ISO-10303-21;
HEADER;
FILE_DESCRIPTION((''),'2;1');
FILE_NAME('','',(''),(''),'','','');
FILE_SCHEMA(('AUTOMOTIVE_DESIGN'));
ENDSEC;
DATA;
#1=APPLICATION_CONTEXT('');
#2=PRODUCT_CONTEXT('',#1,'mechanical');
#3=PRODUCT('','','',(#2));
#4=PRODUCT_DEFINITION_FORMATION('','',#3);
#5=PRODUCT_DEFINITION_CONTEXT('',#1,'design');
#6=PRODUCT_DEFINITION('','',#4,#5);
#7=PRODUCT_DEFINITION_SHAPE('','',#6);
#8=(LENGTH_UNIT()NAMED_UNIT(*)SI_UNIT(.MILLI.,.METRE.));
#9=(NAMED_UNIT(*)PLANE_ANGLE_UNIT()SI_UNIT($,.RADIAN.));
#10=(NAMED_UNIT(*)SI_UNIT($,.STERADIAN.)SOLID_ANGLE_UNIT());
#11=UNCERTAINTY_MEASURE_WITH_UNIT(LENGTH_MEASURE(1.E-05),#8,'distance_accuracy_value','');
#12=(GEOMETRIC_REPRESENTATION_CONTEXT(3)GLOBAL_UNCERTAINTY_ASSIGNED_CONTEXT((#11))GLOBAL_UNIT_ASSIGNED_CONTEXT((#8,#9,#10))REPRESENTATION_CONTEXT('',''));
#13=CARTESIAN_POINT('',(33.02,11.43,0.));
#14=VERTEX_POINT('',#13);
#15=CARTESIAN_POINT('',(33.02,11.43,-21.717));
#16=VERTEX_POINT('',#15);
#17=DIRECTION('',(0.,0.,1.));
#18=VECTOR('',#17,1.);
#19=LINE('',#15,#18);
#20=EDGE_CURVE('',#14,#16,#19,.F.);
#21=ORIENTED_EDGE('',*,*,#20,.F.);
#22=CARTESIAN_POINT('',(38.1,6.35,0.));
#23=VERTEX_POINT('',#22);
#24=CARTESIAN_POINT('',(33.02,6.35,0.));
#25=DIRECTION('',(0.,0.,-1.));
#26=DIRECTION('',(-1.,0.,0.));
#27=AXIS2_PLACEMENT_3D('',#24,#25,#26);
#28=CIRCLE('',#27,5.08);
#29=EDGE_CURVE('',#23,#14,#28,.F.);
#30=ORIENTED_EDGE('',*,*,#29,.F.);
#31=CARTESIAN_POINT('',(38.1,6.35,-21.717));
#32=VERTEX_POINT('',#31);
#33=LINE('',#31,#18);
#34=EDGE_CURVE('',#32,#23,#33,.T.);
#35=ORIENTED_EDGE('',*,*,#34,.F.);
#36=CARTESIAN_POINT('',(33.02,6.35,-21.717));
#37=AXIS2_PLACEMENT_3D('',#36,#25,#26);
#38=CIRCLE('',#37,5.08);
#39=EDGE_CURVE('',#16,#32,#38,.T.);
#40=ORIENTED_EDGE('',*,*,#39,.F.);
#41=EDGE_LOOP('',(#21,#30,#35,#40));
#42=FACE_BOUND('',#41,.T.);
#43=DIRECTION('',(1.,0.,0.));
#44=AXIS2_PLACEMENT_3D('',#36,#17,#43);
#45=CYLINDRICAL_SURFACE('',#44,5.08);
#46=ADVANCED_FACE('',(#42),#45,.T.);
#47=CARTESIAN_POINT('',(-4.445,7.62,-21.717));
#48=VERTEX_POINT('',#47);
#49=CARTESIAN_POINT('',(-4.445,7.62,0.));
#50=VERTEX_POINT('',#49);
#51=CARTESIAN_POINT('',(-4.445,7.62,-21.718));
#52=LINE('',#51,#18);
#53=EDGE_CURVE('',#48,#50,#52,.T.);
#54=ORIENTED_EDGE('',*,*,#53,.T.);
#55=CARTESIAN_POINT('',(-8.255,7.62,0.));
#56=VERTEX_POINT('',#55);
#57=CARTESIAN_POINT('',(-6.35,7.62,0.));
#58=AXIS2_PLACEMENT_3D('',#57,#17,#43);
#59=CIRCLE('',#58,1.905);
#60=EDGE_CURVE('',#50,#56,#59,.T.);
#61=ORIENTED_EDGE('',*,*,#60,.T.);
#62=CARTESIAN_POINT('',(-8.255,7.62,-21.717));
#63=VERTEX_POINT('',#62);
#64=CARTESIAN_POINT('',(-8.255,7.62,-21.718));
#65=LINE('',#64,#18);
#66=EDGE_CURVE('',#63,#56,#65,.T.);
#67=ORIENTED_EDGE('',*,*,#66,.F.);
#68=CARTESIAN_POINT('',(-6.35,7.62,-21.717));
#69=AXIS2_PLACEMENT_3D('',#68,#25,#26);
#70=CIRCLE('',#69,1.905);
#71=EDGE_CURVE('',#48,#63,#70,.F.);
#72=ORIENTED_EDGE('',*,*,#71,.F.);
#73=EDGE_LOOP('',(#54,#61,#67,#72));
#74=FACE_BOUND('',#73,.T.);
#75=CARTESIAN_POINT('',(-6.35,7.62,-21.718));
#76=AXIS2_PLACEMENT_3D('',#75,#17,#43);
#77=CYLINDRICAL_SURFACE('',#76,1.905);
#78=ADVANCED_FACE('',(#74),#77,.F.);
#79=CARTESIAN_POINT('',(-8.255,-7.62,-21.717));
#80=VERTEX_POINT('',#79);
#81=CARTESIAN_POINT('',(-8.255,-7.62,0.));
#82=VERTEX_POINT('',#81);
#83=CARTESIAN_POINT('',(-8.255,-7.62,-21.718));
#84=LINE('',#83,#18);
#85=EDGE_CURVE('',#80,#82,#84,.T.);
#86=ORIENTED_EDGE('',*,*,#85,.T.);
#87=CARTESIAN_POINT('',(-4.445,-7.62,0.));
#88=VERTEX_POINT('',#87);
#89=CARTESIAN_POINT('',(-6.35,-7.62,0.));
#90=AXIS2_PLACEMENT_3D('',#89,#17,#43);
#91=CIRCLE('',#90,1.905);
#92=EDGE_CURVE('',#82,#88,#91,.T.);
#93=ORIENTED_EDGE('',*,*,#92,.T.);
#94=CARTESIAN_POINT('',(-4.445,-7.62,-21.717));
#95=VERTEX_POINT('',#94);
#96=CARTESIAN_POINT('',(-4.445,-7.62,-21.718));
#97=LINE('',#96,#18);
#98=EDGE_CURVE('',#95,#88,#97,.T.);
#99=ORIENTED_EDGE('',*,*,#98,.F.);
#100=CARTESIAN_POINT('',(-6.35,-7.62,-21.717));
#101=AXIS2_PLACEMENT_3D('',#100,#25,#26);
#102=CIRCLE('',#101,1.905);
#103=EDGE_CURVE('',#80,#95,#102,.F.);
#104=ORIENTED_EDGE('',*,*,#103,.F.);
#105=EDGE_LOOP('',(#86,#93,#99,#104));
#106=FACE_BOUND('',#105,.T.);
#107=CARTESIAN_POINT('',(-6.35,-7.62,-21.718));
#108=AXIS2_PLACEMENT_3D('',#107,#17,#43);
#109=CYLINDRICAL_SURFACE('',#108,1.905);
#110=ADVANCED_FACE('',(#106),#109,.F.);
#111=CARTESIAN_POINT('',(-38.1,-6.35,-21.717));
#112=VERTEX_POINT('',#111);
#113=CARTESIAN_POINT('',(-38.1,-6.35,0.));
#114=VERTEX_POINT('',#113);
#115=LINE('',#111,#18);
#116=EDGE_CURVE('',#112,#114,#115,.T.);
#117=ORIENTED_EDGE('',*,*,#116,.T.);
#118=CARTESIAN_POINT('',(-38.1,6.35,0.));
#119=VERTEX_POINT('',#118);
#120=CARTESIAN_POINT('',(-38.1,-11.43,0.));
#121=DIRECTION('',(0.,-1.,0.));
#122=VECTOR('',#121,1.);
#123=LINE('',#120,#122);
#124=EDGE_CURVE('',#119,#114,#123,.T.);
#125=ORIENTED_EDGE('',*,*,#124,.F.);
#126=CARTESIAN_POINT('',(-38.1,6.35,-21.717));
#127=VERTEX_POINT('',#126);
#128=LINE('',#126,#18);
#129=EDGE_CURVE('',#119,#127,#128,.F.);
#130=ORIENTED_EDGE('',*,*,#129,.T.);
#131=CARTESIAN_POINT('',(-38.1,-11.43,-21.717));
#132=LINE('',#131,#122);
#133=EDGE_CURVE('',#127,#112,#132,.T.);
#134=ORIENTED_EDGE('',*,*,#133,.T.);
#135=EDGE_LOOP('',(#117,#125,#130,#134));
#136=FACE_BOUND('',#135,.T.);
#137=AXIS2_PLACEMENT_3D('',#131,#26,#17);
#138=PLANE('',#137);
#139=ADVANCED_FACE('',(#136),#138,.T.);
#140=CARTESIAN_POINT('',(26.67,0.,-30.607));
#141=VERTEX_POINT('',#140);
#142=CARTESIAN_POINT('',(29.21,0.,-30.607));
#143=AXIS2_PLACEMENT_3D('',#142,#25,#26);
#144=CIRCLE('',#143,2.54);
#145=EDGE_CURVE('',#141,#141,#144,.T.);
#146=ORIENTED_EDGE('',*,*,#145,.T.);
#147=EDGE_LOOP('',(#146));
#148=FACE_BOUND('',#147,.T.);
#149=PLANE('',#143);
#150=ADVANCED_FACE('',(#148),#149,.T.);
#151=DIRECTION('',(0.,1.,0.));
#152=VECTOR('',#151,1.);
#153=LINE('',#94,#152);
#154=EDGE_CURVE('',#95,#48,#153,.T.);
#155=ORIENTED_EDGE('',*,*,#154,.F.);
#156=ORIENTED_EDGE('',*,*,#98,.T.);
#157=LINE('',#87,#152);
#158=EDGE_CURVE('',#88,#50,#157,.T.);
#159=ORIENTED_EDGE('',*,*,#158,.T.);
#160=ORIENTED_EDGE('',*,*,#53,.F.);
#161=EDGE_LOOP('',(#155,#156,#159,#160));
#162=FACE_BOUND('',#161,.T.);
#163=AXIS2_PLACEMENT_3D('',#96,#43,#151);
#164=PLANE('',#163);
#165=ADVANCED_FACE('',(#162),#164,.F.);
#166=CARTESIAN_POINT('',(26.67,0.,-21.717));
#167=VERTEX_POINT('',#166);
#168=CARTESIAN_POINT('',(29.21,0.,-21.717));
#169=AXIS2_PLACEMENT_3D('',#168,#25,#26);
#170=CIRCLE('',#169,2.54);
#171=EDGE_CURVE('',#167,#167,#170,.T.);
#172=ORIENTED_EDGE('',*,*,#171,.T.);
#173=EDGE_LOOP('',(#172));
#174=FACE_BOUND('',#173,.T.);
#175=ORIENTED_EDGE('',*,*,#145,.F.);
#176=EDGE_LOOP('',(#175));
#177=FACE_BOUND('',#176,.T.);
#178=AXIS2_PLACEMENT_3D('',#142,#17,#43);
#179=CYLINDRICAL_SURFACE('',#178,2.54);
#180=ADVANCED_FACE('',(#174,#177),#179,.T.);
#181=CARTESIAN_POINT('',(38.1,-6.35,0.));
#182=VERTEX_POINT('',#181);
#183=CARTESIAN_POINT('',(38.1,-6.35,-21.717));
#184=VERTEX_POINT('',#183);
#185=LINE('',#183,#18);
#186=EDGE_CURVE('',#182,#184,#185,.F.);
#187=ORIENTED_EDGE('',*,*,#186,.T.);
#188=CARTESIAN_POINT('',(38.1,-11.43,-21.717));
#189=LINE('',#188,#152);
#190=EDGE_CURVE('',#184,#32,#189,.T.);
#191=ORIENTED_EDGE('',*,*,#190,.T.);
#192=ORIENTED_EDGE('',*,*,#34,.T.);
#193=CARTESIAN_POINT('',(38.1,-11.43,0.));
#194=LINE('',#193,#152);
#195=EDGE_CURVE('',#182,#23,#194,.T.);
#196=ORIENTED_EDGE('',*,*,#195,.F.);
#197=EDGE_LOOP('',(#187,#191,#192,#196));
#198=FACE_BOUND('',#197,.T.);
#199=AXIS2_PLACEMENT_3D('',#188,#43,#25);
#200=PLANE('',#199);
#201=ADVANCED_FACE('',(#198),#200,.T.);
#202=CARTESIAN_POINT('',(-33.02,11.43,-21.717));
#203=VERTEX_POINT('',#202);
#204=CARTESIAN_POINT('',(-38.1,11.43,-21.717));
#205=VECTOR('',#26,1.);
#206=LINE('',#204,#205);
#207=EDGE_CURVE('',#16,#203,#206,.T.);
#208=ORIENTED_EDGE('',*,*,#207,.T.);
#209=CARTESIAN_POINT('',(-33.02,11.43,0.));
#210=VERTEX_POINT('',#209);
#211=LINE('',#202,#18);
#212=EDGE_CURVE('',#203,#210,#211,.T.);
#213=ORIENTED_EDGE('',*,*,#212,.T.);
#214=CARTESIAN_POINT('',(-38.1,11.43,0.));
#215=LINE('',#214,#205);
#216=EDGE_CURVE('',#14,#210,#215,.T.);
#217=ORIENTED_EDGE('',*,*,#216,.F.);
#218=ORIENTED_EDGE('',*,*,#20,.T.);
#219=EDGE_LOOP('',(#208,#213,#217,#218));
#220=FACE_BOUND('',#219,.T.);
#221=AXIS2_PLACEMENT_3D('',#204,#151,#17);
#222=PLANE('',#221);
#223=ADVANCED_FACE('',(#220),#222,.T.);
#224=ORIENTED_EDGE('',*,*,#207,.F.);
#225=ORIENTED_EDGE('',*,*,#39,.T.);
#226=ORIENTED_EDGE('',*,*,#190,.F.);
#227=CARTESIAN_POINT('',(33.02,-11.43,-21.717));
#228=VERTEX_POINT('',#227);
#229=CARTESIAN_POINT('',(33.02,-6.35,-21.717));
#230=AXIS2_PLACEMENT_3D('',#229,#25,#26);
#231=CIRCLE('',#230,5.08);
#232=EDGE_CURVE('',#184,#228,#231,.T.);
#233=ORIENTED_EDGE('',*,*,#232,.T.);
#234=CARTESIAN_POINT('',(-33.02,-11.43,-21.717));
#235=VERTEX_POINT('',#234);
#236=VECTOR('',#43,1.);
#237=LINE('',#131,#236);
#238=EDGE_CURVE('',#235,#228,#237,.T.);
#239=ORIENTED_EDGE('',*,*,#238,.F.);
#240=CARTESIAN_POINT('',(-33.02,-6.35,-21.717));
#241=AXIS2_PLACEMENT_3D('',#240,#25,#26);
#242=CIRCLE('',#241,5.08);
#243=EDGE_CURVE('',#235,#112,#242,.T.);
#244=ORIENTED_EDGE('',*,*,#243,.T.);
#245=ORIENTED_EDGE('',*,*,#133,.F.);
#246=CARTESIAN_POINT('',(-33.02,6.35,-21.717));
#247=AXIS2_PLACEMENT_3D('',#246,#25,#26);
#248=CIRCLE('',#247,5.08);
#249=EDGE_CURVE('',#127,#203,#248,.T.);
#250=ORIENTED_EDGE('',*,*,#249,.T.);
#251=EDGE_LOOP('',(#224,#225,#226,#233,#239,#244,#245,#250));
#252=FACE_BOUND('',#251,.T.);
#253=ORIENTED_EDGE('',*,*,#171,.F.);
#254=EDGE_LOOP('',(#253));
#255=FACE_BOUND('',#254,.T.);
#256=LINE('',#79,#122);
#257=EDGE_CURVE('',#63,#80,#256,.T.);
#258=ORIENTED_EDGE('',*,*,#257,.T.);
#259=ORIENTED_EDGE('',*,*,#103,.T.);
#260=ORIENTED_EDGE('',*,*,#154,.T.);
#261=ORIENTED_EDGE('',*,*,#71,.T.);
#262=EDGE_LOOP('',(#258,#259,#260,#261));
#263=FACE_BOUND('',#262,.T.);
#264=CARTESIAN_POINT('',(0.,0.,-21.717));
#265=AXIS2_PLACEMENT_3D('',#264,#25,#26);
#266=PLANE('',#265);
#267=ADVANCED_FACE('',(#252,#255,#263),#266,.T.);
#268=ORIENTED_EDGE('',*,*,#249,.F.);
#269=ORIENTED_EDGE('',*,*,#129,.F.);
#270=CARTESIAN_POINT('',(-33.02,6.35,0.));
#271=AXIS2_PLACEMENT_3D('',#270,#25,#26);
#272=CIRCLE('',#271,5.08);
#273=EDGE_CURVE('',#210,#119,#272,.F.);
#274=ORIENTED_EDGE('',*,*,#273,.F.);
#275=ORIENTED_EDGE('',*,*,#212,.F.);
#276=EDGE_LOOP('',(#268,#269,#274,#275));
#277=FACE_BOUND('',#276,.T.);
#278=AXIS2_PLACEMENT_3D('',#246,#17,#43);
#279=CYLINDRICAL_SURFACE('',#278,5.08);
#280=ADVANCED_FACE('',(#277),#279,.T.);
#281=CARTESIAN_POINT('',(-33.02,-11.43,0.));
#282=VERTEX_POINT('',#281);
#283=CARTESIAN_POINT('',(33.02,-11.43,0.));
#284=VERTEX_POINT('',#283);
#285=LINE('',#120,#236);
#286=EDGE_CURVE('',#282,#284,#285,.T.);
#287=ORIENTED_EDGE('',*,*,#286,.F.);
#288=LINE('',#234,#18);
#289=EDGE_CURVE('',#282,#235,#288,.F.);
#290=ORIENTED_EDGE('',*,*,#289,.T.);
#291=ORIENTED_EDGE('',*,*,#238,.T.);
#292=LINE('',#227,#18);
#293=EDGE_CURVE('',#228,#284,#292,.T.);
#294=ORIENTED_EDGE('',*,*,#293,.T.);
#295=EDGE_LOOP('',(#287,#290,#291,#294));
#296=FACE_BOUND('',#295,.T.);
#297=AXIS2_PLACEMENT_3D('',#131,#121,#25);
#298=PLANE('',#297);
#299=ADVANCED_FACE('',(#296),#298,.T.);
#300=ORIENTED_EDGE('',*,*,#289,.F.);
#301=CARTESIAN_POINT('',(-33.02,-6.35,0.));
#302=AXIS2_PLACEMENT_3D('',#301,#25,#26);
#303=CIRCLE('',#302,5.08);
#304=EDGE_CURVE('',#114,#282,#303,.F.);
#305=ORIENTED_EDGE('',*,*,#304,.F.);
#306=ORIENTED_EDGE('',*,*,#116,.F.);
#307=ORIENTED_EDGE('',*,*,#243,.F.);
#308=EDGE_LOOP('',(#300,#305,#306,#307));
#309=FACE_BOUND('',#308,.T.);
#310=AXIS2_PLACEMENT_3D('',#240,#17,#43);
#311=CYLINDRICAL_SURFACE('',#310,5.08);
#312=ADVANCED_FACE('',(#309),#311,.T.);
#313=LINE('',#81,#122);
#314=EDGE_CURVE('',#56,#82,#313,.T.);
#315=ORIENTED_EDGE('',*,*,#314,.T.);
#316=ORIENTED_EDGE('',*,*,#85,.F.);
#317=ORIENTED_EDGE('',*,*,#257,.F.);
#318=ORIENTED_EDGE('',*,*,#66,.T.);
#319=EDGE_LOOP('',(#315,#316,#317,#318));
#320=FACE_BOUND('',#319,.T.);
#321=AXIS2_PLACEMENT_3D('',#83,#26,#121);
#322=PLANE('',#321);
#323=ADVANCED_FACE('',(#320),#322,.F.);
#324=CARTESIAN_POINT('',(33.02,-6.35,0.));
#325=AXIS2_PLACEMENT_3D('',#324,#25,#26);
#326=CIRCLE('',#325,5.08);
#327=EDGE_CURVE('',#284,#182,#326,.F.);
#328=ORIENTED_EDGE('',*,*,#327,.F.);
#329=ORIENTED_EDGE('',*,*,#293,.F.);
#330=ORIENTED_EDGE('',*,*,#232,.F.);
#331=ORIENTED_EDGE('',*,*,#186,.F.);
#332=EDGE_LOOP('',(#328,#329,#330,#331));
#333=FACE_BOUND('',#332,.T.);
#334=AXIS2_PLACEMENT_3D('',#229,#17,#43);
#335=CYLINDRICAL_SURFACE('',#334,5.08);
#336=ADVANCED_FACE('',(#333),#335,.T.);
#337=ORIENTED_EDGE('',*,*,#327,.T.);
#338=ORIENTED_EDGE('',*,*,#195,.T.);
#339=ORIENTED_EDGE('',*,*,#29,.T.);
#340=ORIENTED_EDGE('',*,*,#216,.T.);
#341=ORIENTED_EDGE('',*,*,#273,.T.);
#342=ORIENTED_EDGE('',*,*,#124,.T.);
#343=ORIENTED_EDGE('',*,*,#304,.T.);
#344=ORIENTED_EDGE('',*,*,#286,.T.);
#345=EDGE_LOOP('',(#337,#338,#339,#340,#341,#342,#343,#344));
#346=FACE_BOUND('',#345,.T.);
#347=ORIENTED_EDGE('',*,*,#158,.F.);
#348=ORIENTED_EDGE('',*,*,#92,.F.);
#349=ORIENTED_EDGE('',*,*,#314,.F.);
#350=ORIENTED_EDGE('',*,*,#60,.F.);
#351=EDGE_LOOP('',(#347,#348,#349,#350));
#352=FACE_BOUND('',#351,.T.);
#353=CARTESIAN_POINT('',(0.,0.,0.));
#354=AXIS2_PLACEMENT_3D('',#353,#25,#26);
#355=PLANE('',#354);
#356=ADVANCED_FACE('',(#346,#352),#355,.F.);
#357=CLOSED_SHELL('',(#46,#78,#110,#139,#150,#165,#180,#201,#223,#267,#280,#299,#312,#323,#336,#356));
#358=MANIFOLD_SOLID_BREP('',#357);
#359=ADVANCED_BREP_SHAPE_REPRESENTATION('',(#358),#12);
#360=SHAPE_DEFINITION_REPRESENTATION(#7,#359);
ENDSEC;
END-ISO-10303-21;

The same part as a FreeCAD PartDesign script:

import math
import FreeCAD as App
import Part
import Sketcher

V = App.Vector
Q = App.Units.Quantity


def edges_at(feature, points):
    """Names of the edges that pass closest to the given points."""
    edges = feature.Shape.Edges
    near = lambda p: min(range(len(edges)), key=lambda i: edges[i].distToShape(Part.Vertex(*p))[0])
    return sorted({f"Edge{near(p) + 1}" for p in points})


def add_polygon(sketch, points):
    """Adds a closed chain of lines whose ends are joined by coincident constraints."""
    first, n = sketch.GeometryCount, len(points)
    for a, b in zip(points, points[1:] + points[:1]):
        sketch.addGeometry(Part.LineSegment(App.Vector(*a, 0), App.Vector(*b, 0)), False)
    for i in range(n):
        sketch.addConstraint(Sketcher.Constraint("Coincident", first + i, 2, first + (i + 1) % n, 1))

doc = App.newDocument("Part")
body = doc.addObject("PartDesign::Body", "Body")

# Sketch on XY plane
sketch1 = body.newObject("Sketcher::SketchObject", "Sketch")
sketch1.AttachmentSupport = (doc.getObject("XY_Plane"), [""])
sketch1.MapMode = "FlatFace"
add_polygon(sketch1, [(-38, 11), (-38, -11), (38, -11), (38, 11)])  # lines 0-3
sketch1.addConstraint([
    Sketcher.Constraint("Vertical", 0),
    Sketcher.Constraint("Horizontal", 1),
    Sketcher.Constraint("Vertical", 2),
    Sketcher.Constraint("Horizontal", 3),
    Sketcher.Constraint("Symmetric", 0, 2, 2, 2, -1, 1),
    Sketcher.Constraint("DistanceX", 1, 1, 1, 2, Q("3 in")),
    Sketcher.Constraint("DistanceY", 0, 2, 0, 1, Q("0.9 in")),
])
pad1 = body.newObject("PartDesign::Pad", "Pad")
pad1.Profile = sketch1
pad1.Length = Q("0.855 in")
pad1.Reversed = True

# Sketch on XY plane
sketch2 = body.newObject("Sketcher::SketchObject", "Sketch001")
sketch2.AttachmentSupport = (doc.getObject("XY_Plane"), [""])
sketch2.MapMode = "FlatFace"
sketch2.addGeometry([
    Part.LineSegment(V(-8.3, 7.6, 0), V(-8.3, -7.6, 0)),
    Part.ArcOfCircle(Part.Circle(V(-6.3, -7.6, 0), V(0, 0, 1), 1.9), math.radians(180), math.radians(360)),
    Part.LineSegment(V(-4.4, -7.6, 0), V(-4.4, 7.6, 0)),
    Part.ArcOfCircle(Part.Circle(V(-6.3, 7.6, 0), V(0, 0, 1), 1.9), math.radians(0), math.radians(180)),
], False)
sketch2.addConstraint([
    Sketcher.Constraint("Tangent", 0, 2, 1, 1),
    Sketcher.Constraint("Tangent", 1, 2, 2, 1),
    Sketcher.Constraint("Tangent", 2, 2, 3, 1),
    Sketcher.Constraint("Tangent", 3, 2, 0, 1),
    Sketcher.Constraint("Vertical", 0),
    Sketcher.Constraint("Vertical", 2),
    Sketcher.Constraint("DistanceY", 0, 2, 0, 1, Q("0.6 in")),
    Sketcher.Constraint("Radius", 1, Q("0.075 in")),
    Sketcher.Constraint("DistanceY", 1, 3, -1, 1, Q("0.3 in")),
    Sketcher.Constraint("DistanceX", 1, 3, -1, 1, Q("0.25 in")),
])
pocket1 = body.newObject("PartDesign::Pocket", "Pocket")
pocket1.Profile = sketch2
pocket1.Type = "UpToFirst"
doc.recompute()

fillet = body.newObject("PartDesign::Fillet", "Fillet")
fillet.Base = (pocket1, edges_at(pocket1, [
    (38.1, -11.43, -10.858),
    (-38.1, -11.43, -10.858),
    (-38.1, 11.43, -10.858),
    (38.1, 11.43, -10.858),
]))
fillet.Radius = Q("0.2 in")

# Sketch on XY plane
sketch3 = body.newObject("Sketcher::SketchObject", "Sketch002")
sketch3.AttachmentSupport = (doc.getObject("XY_Plane"), [""])
sketch3.MapMode = "FlatFace"
sketch3.AttachmentOffset = App.Placement(V(0, 0, -0.855 * 25.4), App.Rotation())
sketch3.addGeometry(Part.Circle(V(29.2, 0, 0), V(0, 0, 1), 2.5), False)
sketch3.addConstraint([
    Sketcher.Constraint("PointOnObject", 0, 3, -1),
    Sketcher.Constraint("Diameter", 0, Q("0.2 in")),
    Sketcher.Constraint("DistanceX", -1, 1, 0, 3, Q("1.15 in")),
])
pad2 = body.newObject("PartDesign::Pad", "Pad001")
pad2.Profile = sketch3
pad2.Length = Q("0.35 in")
pad2.Reversed = True

doc.recompute()
